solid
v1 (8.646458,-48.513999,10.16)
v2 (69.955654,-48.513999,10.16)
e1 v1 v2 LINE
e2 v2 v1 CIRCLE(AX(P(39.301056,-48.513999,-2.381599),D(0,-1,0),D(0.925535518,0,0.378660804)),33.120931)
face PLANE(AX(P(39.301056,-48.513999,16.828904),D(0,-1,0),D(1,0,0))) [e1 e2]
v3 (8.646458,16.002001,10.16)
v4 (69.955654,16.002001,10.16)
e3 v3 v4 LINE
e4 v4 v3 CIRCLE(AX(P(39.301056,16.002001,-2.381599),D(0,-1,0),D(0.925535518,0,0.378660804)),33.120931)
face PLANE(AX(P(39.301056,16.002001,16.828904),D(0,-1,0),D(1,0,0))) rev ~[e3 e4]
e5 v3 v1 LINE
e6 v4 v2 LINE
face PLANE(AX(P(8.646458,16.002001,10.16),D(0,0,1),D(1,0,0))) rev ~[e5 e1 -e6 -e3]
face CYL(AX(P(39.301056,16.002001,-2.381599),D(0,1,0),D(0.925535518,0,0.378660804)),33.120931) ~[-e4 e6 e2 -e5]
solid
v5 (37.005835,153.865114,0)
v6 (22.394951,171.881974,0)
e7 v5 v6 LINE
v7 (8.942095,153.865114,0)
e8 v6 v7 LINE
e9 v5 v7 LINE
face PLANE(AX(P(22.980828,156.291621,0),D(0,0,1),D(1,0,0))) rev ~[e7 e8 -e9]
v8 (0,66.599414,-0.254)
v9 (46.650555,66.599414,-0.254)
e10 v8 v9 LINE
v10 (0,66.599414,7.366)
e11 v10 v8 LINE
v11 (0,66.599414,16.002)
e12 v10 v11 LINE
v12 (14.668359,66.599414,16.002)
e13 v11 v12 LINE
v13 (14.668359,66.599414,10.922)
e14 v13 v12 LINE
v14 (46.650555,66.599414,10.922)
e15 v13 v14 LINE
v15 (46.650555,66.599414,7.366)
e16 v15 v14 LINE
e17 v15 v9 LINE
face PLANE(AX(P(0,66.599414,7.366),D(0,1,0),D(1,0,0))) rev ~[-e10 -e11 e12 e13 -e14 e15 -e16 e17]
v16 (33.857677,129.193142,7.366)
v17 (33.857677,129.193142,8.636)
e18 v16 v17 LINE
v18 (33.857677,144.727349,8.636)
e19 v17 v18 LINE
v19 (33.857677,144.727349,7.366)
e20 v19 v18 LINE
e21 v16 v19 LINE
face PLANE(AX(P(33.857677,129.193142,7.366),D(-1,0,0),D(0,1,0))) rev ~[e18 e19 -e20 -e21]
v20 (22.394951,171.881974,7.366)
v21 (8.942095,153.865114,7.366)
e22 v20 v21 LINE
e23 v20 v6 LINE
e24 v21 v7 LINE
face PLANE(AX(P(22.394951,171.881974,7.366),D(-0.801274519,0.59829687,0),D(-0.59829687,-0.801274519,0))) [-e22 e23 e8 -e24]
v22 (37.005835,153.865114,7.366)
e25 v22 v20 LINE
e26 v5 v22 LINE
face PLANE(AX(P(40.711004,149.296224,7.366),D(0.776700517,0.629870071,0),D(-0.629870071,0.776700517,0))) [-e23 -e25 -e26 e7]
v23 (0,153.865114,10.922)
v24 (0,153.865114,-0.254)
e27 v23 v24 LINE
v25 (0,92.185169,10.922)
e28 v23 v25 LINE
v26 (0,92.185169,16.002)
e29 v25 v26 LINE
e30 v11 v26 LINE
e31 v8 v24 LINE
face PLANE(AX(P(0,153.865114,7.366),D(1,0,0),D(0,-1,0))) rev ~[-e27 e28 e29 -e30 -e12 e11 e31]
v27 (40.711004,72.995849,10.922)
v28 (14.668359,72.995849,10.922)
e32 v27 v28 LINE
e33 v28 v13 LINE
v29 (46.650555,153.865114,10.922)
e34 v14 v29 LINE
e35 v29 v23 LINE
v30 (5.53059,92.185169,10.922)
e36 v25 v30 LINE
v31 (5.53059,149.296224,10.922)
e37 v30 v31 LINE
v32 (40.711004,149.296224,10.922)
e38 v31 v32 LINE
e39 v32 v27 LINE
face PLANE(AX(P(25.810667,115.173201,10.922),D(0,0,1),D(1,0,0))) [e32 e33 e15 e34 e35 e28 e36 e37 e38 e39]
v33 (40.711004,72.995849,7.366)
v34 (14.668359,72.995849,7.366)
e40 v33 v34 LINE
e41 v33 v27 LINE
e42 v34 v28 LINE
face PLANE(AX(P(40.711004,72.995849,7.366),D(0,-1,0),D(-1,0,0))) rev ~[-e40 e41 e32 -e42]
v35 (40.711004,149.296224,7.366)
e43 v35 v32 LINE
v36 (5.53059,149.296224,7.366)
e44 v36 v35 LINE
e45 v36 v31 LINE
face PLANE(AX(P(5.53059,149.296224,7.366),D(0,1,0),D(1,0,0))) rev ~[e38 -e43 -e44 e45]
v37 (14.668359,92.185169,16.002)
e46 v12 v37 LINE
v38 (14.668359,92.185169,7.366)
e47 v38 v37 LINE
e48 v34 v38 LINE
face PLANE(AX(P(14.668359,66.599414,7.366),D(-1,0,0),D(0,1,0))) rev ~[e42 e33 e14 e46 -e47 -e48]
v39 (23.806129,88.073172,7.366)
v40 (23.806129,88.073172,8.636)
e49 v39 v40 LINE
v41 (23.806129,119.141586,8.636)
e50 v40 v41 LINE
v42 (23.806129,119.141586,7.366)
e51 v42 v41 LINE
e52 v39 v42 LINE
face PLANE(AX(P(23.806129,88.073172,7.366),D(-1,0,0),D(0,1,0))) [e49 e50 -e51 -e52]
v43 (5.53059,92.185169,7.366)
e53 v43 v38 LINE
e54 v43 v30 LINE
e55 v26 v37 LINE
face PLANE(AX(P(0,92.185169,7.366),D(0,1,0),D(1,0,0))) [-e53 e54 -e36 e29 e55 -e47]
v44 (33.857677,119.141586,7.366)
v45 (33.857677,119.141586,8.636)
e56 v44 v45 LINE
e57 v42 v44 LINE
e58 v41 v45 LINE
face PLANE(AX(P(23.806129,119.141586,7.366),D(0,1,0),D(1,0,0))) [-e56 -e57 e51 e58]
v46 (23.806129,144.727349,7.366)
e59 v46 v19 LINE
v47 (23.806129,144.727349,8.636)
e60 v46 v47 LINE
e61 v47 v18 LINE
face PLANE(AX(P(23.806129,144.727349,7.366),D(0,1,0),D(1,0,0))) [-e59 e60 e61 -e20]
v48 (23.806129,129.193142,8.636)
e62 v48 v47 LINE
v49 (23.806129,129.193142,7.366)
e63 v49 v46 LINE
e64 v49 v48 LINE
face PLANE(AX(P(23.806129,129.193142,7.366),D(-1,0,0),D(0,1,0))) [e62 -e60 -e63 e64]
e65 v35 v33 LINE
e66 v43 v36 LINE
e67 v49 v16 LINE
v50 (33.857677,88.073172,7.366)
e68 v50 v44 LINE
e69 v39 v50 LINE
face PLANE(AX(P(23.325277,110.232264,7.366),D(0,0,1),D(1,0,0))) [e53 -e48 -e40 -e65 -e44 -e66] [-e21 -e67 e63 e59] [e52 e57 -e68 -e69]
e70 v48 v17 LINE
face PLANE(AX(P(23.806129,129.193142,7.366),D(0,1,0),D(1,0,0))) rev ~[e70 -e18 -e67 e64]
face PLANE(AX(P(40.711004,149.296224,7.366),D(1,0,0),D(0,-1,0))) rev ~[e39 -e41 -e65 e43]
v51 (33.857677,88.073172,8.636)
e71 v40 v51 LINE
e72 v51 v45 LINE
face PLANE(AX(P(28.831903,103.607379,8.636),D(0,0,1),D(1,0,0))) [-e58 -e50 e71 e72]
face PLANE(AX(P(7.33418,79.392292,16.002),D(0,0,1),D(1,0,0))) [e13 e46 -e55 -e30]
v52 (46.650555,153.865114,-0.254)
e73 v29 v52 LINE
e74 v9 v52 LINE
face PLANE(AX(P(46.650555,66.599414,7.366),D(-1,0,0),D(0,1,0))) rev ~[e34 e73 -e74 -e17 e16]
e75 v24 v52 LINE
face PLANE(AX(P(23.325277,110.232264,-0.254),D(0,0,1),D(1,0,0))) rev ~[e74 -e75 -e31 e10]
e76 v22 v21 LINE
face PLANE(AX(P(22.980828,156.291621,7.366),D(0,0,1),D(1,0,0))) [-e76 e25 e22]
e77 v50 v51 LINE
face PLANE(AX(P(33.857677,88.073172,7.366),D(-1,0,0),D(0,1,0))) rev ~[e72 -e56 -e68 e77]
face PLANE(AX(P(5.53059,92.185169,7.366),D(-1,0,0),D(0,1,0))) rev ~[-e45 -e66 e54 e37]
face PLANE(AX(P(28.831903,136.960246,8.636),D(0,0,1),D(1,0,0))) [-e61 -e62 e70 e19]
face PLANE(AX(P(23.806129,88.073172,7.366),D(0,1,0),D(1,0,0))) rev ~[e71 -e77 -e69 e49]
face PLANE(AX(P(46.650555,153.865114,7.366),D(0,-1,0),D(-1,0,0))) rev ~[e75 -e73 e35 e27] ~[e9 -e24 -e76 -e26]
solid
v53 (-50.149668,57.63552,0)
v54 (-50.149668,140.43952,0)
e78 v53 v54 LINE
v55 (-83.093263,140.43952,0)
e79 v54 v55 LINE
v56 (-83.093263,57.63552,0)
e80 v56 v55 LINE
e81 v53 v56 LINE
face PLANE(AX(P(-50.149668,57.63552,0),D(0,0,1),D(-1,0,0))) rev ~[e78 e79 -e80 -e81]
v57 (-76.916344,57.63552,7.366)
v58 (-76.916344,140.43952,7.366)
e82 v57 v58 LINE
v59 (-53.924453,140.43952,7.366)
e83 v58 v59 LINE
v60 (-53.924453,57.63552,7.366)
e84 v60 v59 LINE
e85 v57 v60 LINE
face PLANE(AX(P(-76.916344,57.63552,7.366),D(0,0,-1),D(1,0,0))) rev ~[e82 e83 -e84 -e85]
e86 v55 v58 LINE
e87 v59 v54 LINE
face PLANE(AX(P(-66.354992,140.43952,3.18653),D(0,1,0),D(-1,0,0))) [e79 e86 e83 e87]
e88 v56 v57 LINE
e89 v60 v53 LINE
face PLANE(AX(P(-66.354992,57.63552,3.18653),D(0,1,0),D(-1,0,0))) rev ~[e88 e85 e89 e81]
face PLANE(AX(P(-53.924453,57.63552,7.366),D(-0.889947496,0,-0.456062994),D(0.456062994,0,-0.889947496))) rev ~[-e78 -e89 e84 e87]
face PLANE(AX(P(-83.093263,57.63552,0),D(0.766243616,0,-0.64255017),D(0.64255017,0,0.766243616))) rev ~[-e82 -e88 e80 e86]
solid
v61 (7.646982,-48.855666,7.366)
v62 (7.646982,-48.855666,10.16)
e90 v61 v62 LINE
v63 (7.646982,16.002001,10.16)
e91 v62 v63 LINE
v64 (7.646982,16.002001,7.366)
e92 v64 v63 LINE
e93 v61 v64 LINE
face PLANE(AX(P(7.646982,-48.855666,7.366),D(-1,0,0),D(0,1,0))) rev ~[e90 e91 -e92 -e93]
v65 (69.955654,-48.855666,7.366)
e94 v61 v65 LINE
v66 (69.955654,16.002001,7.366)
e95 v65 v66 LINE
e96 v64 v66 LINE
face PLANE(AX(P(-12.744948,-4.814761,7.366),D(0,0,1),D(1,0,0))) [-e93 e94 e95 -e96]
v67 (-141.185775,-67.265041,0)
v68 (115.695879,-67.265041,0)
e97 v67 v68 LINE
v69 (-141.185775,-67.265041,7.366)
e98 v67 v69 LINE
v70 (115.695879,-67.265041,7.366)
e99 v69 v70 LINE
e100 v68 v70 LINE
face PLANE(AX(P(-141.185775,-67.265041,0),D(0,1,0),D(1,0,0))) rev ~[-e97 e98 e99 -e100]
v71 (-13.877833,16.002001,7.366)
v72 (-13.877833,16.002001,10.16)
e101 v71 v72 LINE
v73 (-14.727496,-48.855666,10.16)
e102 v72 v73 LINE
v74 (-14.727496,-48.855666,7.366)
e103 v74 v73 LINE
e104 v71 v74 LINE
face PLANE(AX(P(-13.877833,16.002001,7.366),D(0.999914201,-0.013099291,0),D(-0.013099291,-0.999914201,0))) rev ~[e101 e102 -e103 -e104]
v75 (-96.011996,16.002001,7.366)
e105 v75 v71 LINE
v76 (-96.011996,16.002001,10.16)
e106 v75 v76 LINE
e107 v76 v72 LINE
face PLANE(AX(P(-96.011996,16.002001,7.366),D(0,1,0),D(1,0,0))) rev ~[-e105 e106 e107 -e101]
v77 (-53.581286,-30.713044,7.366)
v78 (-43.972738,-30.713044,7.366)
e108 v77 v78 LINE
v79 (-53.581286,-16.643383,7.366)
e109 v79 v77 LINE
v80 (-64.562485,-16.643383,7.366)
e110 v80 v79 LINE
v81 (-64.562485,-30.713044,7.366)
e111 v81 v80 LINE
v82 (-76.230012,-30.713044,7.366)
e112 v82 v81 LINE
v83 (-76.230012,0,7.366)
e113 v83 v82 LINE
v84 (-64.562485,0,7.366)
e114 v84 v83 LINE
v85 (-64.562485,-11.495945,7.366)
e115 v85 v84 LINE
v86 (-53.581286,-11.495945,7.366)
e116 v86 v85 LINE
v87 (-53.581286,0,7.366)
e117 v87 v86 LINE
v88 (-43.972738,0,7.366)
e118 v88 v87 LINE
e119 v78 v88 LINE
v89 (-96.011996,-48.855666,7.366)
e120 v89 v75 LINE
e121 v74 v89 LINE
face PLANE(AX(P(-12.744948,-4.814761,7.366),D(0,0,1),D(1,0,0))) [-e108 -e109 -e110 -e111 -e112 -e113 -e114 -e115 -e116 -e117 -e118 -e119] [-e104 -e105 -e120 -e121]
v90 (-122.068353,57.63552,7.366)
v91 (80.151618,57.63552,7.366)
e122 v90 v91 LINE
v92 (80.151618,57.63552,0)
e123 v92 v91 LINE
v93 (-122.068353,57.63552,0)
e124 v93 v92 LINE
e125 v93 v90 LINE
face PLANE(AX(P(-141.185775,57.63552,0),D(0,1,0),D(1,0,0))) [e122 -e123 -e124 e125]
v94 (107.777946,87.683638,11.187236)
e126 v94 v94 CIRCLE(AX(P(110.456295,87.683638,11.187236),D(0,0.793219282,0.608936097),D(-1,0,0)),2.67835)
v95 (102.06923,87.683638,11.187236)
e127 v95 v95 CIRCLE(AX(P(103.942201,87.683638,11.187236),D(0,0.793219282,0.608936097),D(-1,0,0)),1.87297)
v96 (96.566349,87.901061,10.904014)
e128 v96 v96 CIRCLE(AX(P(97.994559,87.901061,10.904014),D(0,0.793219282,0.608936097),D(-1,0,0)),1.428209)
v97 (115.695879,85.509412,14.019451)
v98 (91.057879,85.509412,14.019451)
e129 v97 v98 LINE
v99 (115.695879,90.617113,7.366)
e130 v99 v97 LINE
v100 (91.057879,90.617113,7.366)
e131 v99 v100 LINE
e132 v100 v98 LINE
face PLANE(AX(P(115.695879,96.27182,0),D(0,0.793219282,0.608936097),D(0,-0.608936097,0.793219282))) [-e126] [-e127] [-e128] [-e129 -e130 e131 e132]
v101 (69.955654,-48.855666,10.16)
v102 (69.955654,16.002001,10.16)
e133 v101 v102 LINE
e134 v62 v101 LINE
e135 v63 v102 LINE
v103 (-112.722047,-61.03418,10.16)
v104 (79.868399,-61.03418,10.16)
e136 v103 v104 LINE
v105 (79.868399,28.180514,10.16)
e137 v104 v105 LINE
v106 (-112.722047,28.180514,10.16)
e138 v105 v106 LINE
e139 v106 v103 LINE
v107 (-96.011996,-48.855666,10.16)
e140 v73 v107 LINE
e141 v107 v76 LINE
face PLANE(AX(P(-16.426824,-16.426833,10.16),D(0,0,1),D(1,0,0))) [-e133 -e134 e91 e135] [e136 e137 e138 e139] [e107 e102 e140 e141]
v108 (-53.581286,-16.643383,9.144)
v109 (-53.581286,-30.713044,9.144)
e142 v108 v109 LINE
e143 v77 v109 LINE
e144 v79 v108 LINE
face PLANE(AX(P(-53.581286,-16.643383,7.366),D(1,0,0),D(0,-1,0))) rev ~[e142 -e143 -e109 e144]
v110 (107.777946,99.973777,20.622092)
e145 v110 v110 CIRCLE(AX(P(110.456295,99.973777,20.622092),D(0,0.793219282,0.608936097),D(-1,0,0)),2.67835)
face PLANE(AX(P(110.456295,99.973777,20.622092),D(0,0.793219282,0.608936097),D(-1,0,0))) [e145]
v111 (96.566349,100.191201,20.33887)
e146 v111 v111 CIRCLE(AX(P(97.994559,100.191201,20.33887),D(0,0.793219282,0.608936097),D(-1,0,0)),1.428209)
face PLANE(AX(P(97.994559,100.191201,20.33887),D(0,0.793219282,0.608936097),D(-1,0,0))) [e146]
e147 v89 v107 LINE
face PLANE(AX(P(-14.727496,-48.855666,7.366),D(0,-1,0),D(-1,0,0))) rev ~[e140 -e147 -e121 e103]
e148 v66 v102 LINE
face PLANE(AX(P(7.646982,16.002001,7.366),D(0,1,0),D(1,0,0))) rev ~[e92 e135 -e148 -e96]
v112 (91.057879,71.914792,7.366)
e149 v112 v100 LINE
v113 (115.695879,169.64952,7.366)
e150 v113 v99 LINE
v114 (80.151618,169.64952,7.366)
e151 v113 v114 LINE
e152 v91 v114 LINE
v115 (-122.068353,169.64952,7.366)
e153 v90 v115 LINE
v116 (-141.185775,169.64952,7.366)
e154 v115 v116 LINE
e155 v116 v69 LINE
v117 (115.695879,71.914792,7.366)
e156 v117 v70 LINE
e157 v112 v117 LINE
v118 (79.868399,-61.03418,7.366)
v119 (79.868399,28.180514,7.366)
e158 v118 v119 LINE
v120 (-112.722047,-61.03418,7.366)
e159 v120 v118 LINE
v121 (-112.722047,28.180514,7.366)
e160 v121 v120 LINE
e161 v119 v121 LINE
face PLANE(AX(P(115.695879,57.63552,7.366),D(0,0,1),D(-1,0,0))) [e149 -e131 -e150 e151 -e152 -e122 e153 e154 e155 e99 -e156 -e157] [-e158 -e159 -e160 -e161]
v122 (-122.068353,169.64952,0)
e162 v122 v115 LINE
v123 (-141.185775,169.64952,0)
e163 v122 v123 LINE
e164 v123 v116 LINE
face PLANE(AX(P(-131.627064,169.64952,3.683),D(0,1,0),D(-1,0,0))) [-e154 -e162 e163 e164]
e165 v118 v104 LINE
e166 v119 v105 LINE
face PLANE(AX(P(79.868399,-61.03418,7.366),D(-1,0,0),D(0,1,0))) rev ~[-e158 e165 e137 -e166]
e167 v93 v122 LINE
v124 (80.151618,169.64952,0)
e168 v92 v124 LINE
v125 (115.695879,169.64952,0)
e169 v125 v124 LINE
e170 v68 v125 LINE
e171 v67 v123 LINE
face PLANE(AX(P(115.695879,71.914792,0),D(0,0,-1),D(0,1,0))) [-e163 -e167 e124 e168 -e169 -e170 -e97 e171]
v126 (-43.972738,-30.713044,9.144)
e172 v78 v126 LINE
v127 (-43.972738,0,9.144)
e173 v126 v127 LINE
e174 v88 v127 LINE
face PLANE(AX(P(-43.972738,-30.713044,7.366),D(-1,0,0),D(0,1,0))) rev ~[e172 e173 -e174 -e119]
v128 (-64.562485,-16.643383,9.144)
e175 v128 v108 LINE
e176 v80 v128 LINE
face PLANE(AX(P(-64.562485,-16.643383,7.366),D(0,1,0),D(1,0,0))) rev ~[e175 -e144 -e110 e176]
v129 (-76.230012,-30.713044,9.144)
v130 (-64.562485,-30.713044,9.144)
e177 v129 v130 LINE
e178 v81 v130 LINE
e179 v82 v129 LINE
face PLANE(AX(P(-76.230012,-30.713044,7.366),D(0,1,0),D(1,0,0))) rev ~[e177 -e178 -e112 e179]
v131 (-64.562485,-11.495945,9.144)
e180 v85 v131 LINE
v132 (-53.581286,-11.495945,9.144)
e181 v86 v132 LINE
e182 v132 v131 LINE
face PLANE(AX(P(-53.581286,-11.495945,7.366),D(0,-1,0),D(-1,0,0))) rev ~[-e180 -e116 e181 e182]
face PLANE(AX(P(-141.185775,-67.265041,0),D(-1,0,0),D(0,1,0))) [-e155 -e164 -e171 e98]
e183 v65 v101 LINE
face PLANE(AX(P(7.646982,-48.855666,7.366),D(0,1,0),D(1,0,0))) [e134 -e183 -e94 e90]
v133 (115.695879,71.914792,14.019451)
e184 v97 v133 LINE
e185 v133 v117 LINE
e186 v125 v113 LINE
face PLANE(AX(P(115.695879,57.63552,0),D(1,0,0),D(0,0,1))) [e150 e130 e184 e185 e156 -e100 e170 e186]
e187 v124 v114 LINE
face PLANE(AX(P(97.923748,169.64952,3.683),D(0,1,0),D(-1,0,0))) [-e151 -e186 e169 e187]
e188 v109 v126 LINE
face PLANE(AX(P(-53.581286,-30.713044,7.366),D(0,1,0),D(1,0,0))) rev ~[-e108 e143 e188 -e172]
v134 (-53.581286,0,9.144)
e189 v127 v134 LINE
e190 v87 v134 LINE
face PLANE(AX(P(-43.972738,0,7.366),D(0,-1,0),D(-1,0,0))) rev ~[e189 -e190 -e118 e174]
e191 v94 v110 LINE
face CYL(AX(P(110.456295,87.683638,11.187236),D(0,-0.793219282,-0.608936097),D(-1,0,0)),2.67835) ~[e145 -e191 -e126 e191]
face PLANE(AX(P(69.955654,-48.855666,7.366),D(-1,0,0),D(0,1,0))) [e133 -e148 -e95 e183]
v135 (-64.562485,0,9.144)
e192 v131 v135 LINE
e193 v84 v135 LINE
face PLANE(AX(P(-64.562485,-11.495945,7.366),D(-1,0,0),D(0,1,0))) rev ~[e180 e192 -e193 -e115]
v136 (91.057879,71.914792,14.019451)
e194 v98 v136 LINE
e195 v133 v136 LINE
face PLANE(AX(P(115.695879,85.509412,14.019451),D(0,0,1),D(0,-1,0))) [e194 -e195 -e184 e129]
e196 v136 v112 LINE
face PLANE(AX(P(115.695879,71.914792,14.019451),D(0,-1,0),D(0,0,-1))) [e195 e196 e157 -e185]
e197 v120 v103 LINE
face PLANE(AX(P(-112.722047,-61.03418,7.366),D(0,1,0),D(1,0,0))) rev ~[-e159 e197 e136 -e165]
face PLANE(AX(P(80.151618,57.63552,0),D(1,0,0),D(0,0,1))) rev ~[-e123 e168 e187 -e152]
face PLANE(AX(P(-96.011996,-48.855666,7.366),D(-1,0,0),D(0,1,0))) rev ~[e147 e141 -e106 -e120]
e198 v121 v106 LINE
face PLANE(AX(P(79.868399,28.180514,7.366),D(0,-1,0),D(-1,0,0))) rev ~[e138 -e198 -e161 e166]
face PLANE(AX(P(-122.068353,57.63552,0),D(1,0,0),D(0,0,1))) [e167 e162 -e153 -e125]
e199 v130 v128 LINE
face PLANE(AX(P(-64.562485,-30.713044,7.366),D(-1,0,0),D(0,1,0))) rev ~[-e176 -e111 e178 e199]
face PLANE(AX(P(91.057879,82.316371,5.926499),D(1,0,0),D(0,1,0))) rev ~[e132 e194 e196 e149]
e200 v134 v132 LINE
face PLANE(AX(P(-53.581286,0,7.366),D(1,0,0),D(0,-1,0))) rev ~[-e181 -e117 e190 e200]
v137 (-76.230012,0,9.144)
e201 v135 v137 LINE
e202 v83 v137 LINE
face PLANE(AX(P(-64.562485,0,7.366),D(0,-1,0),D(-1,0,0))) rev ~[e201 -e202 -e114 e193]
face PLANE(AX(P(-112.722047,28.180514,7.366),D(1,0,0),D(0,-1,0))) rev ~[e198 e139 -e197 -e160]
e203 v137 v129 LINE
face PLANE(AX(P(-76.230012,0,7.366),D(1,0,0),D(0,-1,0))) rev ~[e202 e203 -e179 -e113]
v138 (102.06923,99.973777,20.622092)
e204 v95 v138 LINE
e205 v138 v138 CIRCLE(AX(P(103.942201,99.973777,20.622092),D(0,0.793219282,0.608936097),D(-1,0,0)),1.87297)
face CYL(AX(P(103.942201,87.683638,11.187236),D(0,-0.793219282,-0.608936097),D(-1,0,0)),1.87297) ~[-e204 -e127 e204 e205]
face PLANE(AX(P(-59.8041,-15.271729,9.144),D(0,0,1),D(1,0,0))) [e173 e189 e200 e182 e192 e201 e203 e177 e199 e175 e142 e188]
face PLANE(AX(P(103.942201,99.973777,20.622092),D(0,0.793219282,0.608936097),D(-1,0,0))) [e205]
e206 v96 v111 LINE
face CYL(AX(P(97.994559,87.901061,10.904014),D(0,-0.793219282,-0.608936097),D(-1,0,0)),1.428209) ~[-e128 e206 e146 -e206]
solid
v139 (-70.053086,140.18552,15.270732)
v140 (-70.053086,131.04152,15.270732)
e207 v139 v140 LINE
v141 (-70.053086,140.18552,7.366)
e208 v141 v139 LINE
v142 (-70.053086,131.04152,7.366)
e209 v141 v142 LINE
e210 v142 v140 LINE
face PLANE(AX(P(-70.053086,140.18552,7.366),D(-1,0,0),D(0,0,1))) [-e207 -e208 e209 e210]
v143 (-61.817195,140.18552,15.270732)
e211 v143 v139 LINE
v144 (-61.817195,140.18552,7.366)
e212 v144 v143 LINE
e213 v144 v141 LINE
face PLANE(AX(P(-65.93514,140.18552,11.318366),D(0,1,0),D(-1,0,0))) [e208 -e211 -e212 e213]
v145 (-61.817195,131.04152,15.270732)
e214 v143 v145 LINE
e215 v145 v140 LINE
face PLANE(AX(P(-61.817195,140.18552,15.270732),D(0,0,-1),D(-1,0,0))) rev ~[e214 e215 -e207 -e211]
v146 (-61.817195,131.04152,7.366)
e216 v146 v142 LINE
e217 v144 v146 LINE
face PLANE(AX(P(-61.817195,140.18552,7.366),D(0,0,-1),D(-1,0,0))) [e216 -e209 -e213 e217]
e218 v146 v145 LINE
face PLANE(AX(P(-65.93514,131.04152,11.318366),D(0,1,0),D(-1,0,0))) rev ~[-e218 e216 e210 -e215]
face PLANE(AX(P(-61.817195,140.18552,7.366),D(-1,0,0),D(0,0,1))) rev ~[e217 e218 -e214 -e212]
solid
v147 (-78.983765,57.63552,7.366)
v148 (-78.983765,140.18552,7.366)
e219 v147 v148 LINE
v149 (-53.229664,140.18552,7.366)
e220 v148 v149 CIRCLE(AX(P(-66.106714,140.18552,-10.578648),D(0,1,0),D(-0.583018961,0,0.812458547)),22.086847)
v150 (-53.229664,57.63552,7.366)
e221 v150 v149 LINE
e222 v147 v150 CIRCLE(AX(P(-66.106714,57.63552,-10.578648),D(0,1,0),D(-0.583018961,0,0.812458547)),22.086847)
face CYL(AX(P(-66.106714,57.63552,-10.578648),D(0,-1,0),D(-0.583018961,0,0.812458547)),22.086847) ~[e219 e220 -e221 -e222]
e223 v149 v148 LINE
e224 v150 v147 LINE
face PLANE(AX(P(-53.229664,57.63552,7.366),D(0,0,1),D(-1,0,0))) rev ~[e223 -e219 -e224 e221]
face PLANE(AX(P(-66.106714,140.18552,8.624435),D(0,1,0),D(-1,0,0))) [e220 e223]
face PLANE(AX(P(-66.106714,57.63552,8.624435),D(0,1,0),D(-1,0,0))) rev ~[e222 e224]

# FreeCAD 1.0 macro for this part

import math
import FreeCAD as App
import Part
import Sketcher
Q = App.Units.Quantity

doc = App.newDocument("Part")
body = doc.addObject("PartDesign::Body", "Body")

# Sketch on XY plane
sketch1 = body.newObject("Sketcher::SketchObject", "Sketch")
sketch1.AttachmentSupport = (doc.getObject("XY_Plane"), [""])
sketch1.MapMode = "FlatFace"
sketch1.addGeometry(Part.LineSegment(App.Vector(-141.185775, 57.63552, 0), App.Vector(-141.185775, -67.265041, 0)), False)
sketch1.addGeometry(Part.LineSegment(App.Vector(-141.185775, -67.265041, 0), App.Vector(115.695879, -67.265041, 0)), False)
sketch1.addGeometry(Part.LineSegment(App.Vector(115.695879, -67.265041, 0), App.Vector(115.695879, 57.63552, 0)), False)
sketch1.addGeometry(Part.LineSegment(App.Vector(115.695879, 57.63552, 0), App.Vector(-141.185775, 57.63552, 0)), False)
sketch1.addConstraint(Sketcher.Constraint("Coincident", 0, 2, 1, 1))
sketch1.addConstraint(Sketcher.Constraint("Coincident", 1, 2, 2, 1))
sketch1.addConstraint(Sketcher.Constraint("Coincident", 2, 2, 3, 1))
sketch1.addConstraint(Sketcher.Constraint("Coincident", 3, 2, 0, 1))
sketch1.addConstraint(Sketcher.Constraint("Vertical", 0))
sketch1.addConstraint(Sketcher.Constraint("Horizontal", 1))
sketch1.addConstraint(Sketcher.Constraint("Vertical", 2))
sketch1.addConstraint(Sketcher.Constraint("Horizontal", 3))
sketch1.addConstraint(Sketcher.Constraint("DistanceY", 0, 2, 0, 1, Q("124.900561 mm")))
sketch1.addConstraint(Sketcher.Constraint("DistanceX", 1, 1, 1, 2, Q("256.881654 mm")))
sketch1.addConstraint(Sketcher.Constraint("DistanceY", 0, 2, -1, 1, Q("67.265041 mm")))
sketch1.addConstraint(Sketcher.Constraint("DistanceX", -1, 1, 1, 2, Q("115.695879 mm")))
pad1 = body.newObject("PartDesign::Pad", "Pad")
pad1.Profile = sketch1
pad1.Length = Q("0.29 in")

# Sketch on XY plane
sketch2 = body.newObject("Sketcher::SketchObject", "Sketch001")
sketch2.AttachmentSupport = (doc.getObject("XY_Plane"), [""])
sketch2.MapMode = "FlatFace"
sketch2.AttachmentOffset = App.Placement(App.Vector(0, 0, 0.29 * 25.4), App.Rotation())
sketch2.addGeometry(Part.LineSegment(App.Vector(-112.722047, -61.03418, 0), App.Vector(79.868399, -61.03418, 0)), False)
sketch2.addGeometry(Part.LineSegment(App.Vector(79.868399, -61.03418, 0), App.Vector(79.868399, 28.180514, 0)), False)
sketch2.addGeometry(Part.LineSegment(App.Vector(79.868399, 28.180514, 0), App.Vector(-112.722047, 28.180514, 0)), False)
sketch2.addGeometry(Part.LineSegment(App.Vector(-112.722047, 28.180514, 0), App.Vector(-112.722047, -61.03418, 0)), False)
sketch2.addGeometry(Part.LineSegment(App.Vector(-96.011996, -48.855666, 0), App.Vector(-96.011996, 16.002001, 0)), False)
sketch2.addGeometry(Part.LineSegment(App.Vector(-96.011996, 16.002001, 0), App.Vector(-13.877833, 16.002001, 0)), False)
sketch2.addGeometry(Part.LineSegment(App.Vector(-13.877833, 16.002001, 0), App.Vector(-14.727496, -48.855666, 0)), False)
sketch2.addGeometry(Part.LineSegment(App.Vector(-14.727496, -48.855666, 0), App.Vector(-96.011996, -48.855666, 0)), False)
sketch2.addGeometry(Part.LineSegment(App.Vector(69.955654, -48.855666, 0), App.Vector(7.646982, -48.855666, 0)), False)
sketch2.addGeometry(Part.LineSegment(App.Vector(7.646982, -48.855666, 0), App.Vector(7.646982, 16.002001, 0)), False)
sketch2.addGeometry(Part.LineSegment(App.Vector(7.646982, 16.002001, 0), App.Vector(69.955654, 16.002001, 0)), False)
sketch2.addGeometry(Part.LineSegment(App.Vector(69.955654, 16.002001, 0), App.Vector(69.955654, -48.855666, 0)), False)
sketch2.addConstraint(Sketcher.Constraint("Coincident", 0, 2, 1, 1))
sketch2.addConstraint(Sketcher.Constraint("Coincident", 1, 2, 2, 1))
sketch2.addConstraint(Sketcher.Constraint("Coincident", 2, 2, 3, 1))
sketch2.addConstraint(Sketcher.Constraint("Coincident", 3, 2, 0, 1))
sketch2.addConstraint(Sketcher.Constraint("Coincident", 4, 2, 5, 1))
sketch2.addConstraint(Sketcher.Constraint("Coincident", 5, 2, 6, 1))
sketch2.addConstraint(Sketcher.Constraint("Coincident", 6, 2, 7, 1))
sketch2.addConstraint(Sketcher.Constraint("Coincident", 7, 2, 4, 1))
sketch2.addConstraint(Sketcher.Constraint("Coincident", 8, 2, 9, 1))
sketch2.addConstraint(Sketcher.Constraint("Coincident", 9, 2, 10, 1))
sketch2.addConstraint(Sketcher.Constraint("Coincident", 10, 2, 11, 1))
sketch2.addConstraint(Sketcher.Constraint("Coincident", 11, 2, 8, 1))
sketch2.addConstraint(Sketcher.Constraint("Horizontal", 0))
sketch2.addConstraint(Sketcher.Constraint("Vertical", 1))
sketch2.addConstraint(Sketcher.Constraint("Horizontal", 2))
sketch2.addConstraint(Sketcher.Constraint("Vertical", 3))
sketch2.addConstraint(Sketcher.Constraint("Vertical", 4))
sketch2.addConstraint(Sketcher.Constraint("Horizontal", 5))
sketch2.addConstraint(Sketcher.Constraint("Horizontal", 7))
sketch2.addConstraint(Sketcher.Constraint("Horizontal", 8))
sketch2.addConstraint(Sketcher.Constraint("Vertical", 9))
sketch2.addConstraint(Sketcher.Constraint("Horizontal", 10))
sketch2.addConstraint(Sketcher.Constraint("Vertical", 11))
sketch2.addConstraint(Sketcher.Constraint("Horizontal", 7, 2, 8, 2))
sketch2.addConstraint(Sketcher.Constraint("Horizontal", 5, 2, 9, 2))
sketch2.addConstraint(Sketcher.Constraint("DistanceX", 4, 2, -1, 1, Q("3.7799999 in")))
sketch2.addConstraint(Sketcher.Constraint("DistanceY", -1, 1, 4, 2, Q("0.63 in")))
sketch2.addConstraint(Sketcher.Constraint("DistanceX", 7, 2, 7, 1, Q("81.284501 mm")))
sketch2.addConstraint(Sketcher.Constraint("DistanceX", -1, 1, 0, 2, Q("79.868399 mm")))
sketch2.addConstraint(Sketcher.Constraint("DistanceX", 0, 1, 0, 2, Q("192.590445 mm")))
sketch2.addConstraint(Sketcher.Constraint("DistanceX", 5, 1, 5, 2, Q("82.134163 mm")))
sketch2.addConstraint(Sketcher.Constraint("DistanceX", 8, 2, 8, 1, Q("62.308673 mm")))
sketch2.addConstraint(Sketcher.Constraint("DistanceY", 1, 1, 1, 2, Q("89.214694 mm")))
sketch2.addConstraint(Sketcher.Constraint("DistanceY", 4, 1, 4, 2, Q("64.857667 mm")))
sketch2.addConstraint(Sketcher.Constraint("DistanceY", 0, 2, -1, 1, Q("61.03418 mm")))
sketch2.addConstraint(Sketcher.Constraint("DistanceX", -1, 1, 8, 2, Q("7.646982 mm")))
pad2 = body.newObject("PartDesign::Pad", "Pad001")
pad2.Profile = sketch2
pad2.Length = Q("0.11 in")

# Sketch on XY plane
sketch3 = body.newObject("Sketcher::SketchObject", "Sketch002")
sketch3.AttachmentSupport = (doc.getObject("XY_Plane"), [""])
sketch3.MapMode = "FlatFace"
sketch3.AttachmentOffset = App.Placement(App.Vector(0, 0, 0.29 * 25.4), App.Rotation())
sketch3.addGeometry(Part.LineSegment(App.Vector(-64.562485, 0, 0), App.Vector(-76.230012, 0, 0)), False)
sketch3.addGeometry(Part.LineSegment(App.Vector(-76.230012, 0, 0), App.Vector(-76.230012, -30.713044, 0)), False)
sketch3.addGeometry(Part.LineSegment(App.Vector(-76.230012, -30.713044, 0), App.Vector(-64.562485, -30.713044, 0)), False)
sketch3.addGeometry(Part.LineSegment(App.Vector(-64.562485, -30.713044, 0), App.Vector(-64.562485, -16.643383, 0)), False)
sketch3.addGeometry(Part.LineSegment(App.Vector(-64.562485, -16.643383, 0), App.Vector(-53.581286, -16.643383, 0)), False)
sketch3.addGeometry(Part.LineSegment(App.Vector(-53.581286, -16.643383, 0), App.Vector(-53.581286, -30.713044, 0)), False)
sketch3.addGeometry(Part.LineSegment(App.Vector(-53.581286, -30.713044, 0), App.Vector(-43.972738, -30.713044, 0)), False)
sketch3.addGeometry(Part.LineSegment(App.Vector(-43.972738, -30.713044, 0), App.Vector(-43.972738, 0, 0)), False)
sketch3.addGeometry(Part.LineSegment(App.Vector(-43.972738, 0, 0), App.Vector(-53.581286, 0, 0)), False)
sketch3.addGeometry(Part.LineSegment(App.Vector(-53.581286, 0, 0), App.Vector(-53.581286, -11.495945, 0)), False)
sketch3.addGeometry(Part.LineSegment(App.Vector(-53.581286, -11.495945, 0), App.Vector(-64.562485, -11.495945, 0)), False)
sketch3.addGeometry(Part.LineSegment(App.Vector(-64.562485, -11.495945, 0), App.Vector(-64.562485, 0, 0)), False)
sketch3.addConstraint(Sketcher.Constraint("Coincident", 0, 2, 1, 1))
sketch3.addConstraint(Sketcher.Constraint("Coincident", 1, 2, 2, 1))
sketch3.addConstraint(Sketcher.Constraint("Coincident", 2, 2, 3, 1))
sketch3.addConstraint(Sketcher.Constraint("Coincident", 3, 2, 4, 1))
sketch3.addConstraint(Sketcher.Constraint("Coincident", 4, 2, 5, 1))
sketch3.addConstraint(Sketcher.Constraint("Coincident", 5, 2, 6, 1))
sketch3.addConstraint(Sketcher.Constraint("Coincident", 6, 2, 7, 1))
sketch3.addConstraint(Sketcher.Constraint("Coincident", 7, 2, 8, 1))
sketch3.addConstraint(Sketcher.Constraint("Coincident", 8, 2, 9, 1))
sketch3.addConstraint(Sketcher.Constraint("Coincident", 9, 2, 10, 1))
sketch3.addConstraint(Sketcher.Constraint("Coincident", 10, 2, 11, 1))
sketch3.addConstraint(Sketcher.Constraint("Coincident", 11, 2, 0, 1))
sketch3.addConstraint(Sketcher.Constraint("Horizontal", 0))
sketch3.addConstraint(Sketcher.Constraint("Vertical", 1))
sketch3.addConstraint(Sketcher.Constraint("Horizontal", 2))
sketch3.addConstraint(Sketcher.Constraint("Vertical", 3))
sketch3.addConstraint(Sketcher.Constraint("Horizontal", 4))
sketch3.addConstraint(Sketcher.Constraint("Vertical", 5))
sketch3.addConstraint(Sketcher.Constraint("Horizontal", 6))
sketch3.addConstraint(Sketcher.Constraint("Vertical", 7))
sketch3.addConstraint(Sketcher.Constraint("Horizontal", 8))
sketch3.addConstraint(Sketcher.Constraint("Vertical", 9))
sketch3.addConstraint(Sketcher.Constraint("Horizontal", 10))
sketch3.addConstraint(Sketcher.Constraint("Vertical", 11))
sketch3.addConstraint(Sketcher.Constraint("PointOnObject", 0, 2, -1))
sketch3.addConstraint(Sketcher.Constraint("PointOnObject", 7, 2, -1))
sketch3.addConstraint(Sketcher.Constraint("Horizontal", 2, 2, 5, 2))
sketch3.addConstraint(Sketcher.Constraint("Vertical", 5, 2, 8, 2))
sketch3.addConstraint(Sketcher.Constraint("Vertical", 3, 2, 10, 2))
sketch3.addConstraint(Sketcher.Constraint("DistanceX", 4, 1, 4, 2, Q("10.981198 mm")))
sketch3.addConstraint(Sketcher.Constraint("DistanceX", 6, 1, 6, 2, Q("9.608548 mm")))
sketch3.addConstraint(Sketcher.Constraint("DistanceY", 3, 1, 3, 2, Q("14.069661 mm")))
sketch3.addConstraint(Sketcher.Constraint("DistanceY", 5, 2, 9, 2, Q("19.217099 mm")))
sketch3.addConstraint(Sketcher.Constraint("DistanceX", 0, 2, 0, 1, Q("11.667527 mm")))
sketch3.addConstraint(Sketcher.Constraint("DistanceY", 1, 2, 1, 1, Q("30.713044 mm")))
sketch3.addConstraint(Sketcher.Constraint("DistanceX", 0, 2, -1, 1, Q("76.230012 mm")))
pad3 = body.newObject("PartDesign::Pad", "Pad002")
pad3.Profile = sketch3
pad3.Length = Q("0.07 in")

# Sketch on XZ plane
sketch4 = body.newObject("Sketcher::SketchObject", "Sketch003")
sketch4.AttachmentSupport = (doc.getObject("XZ_Plane"), [""])
sketch4.MapMode = "FlatFace"
sketch4.AttachmentOffset = App.Placement(App.Vector(0, 0, -57.63552), App.Rotation())
sketch4.addGeometry(Part.LineSegment(App.Vector(115.695879, 7.366, 0), App.Vector(115.695879, 0, 0)), False)
sketch4.addGeometry(Part.LineSegment(App.Vector(115.695879, 0, 0), App.Vector(80.151618, 0, 0)), False)
sketch4.addGeometry(Part.LineSegment(App.Vector(80.151618, 0, 0), App.Vector(80.151618, 7.366, 0)), False)
sketch4.addGeometry(Part.LineSegment(App.Vector(80.151618, 7.366, 0), App.Vector(115.695879, 7.366, 0)), False)
sketch4.addGeometry(Part.LineSegment(App.Vector(-122.068353, 7.366, 0), App.Vector(-122.068353, 0, 0)), False)
sketch4.addGeometry(Part.LineSegment(App.Vector(-122.068353, 0, 0), App.Vector(-141.185775, 0, 0)), False)
sketch4.addGeometry(Part.LineSegment(App.Vector(-141.185775, 0, 0), App.Vector(-141.185775, 7.366, 0)), False)
sketch4.addGeometry(Part.LineSegment(App.Vector(-141.185775, 7.366, 0), App.Vector(-122.068353, 7.366, 0)), False)
sketch4.addConstraint(Sketcher.Constraint("Coincident", 0, 2, 1, 1))
sketch4.addConstraint(Sketcher.Constraint("Coincident", 1, 2, 2, 1))
sketch4.addConstraint(Sketcher.Constraint("Coincident", 2, 2, 3, 1))
sketch4.addConstraint(Sketcher.Constraint("Coincident", 3, 2, 0, 1))
sketch4.addConstraint(Sketcher.Constraint("Coincident", 4, 2, 5, 1))
sketch4.addConstraint(Sketcher.Constraint("Coincident", 5, 2, 6, 1))
sketch4.addConstraint(Sketcher.Constraint("Coincident", 6, 2, 7, 1))
sketch4.addConstraint(Sketcher.Constraint("Coincident", 7, 2, 4, 1))
sketch4.addConstraint(Sketcher.Constraint("Vertical", 0))
sketch4.addConstraint(Sketcher.Constraint("Horizontal", 1))
sketch4.addConstraint(Sketcher.Constraint("Vertical", 2))
sketch4.addConstraint(Sketcher.Constraint("Horizontal", 3))
sketch4.addConstraint(Sketcher.Constraint("Vertical", 4))
sketch4.addConstraint(Sketcher.Constraint("Horizontal", 5))
sketch4.addConstraint(Sketcher.Constraint("Vertical", 6))
sketch4.addConstraint(Sketcher.Constraint("Horizontal", 7))
sketch4.addConstraint(Sketcher.Constraint("PointOnObject", 0, 2, -1))
sketch4.addConstraint(Sketcher.Constraint("PointOnObject", 4, 2, -1))
sketch4.addConstraint(Sketcher.Constraint("Horizontal", 3, 2, 6, 2))
sketch4.addConstraint(Sketcher.Constraint("DistanceY", 0, 2, 0, 1, Q("0.29 in")))
sketch4.addConstraint(Sketcher.Constraint("DistanceX", 1, 2, 1, 1, Q("35.544261 mm")))
sketch4.addConstraint(Sketcher.Constraint("DistanceX", 5, 2, 5, 1, Q("19.117422 mm")))
sketch4.addConstraint(Sketcher.Constraint("DistanceX", -1, 1, 0, 2, Q("115.695879 mm")))
sketch4.addConstraint(Sketcher.Constraint("DistanceX", 4, 2, 1, 2, Q("202.219971 mm")))
pad4 = body.newObject("PartDesign::Pad", "Pad003")
pad4.Profile = sketch4
pad4.Length = Q("4.41 in")
pad4.Reversed = True

# Sketch on YZ plane
sketch5 = body.newObject("Sketcher::SketchObject", "Sketch004")
sketch5.AttachmentSupport = (doc.getObject("YZ_Plane"), [""])
sketch5.MapMode = "FlatFace"
sketch5.AttachmentOffset = App.Placement(App.Vector(0, 0, 115.695879), App.Rotation())
sketch5.addGeometry(Part.LineSegment(App.Vector(71.914792, 0, 0), App.Vector(96.27182, 0, 0)), False)
sketch5.addGeometry(Part.LineSegment(App.Vector(96.27182, 0, 0), App.Vector(85.509412, 14.019451, 0)), False)
sketch5.addGeometry(Part.LineSegment(App.Vector(85.509412, 14.019451, 0), App.Vector(71.914792, 14.019451, 0)), False)
sketch5.addGeometry(Part.LineSegment(App.Vector(71.914792, 14.019451, 0), App.Vector(71.914792, 0, 0)), False)
sketch5.addConstraint(Sketcher.Constraint("Coincident", 0, 2, 1, 1))
sketch5.addConstraint(Sketcher.Constraint("Coincident", 1, 2, 2, 1))
sketch5.addConstraint(Sketcher.Constraint("Coincident", 2, 2, 3, 1))
sketch5.addConstraint(Sketcher.Constraint("Coincident", 3, 2, 0, 1))
sketch5.addConstraint(Sketcher.Constraint("Horizontal", 0))
sketch5.addConstraint(Sketcher.Constraint("Horizontal", 2))
sketch5.addConstraint(Sketcher.Constraint("Vertical", 3))
sketch5.addConstraint(Sketcher.Constraint("PointOnObject", 0, 2, -1))
sketch5.addConstraint(Sketcher.Constraint("DistanceX", 0, 1, 0, 2, Q("24.357028 mm")))
sketch5.addConstraint(Sketcher.Constraint("DistanceX", 2, 2, 2, 1, Q("13.59462 mm")))
sketch5.addConstraint(Sketcher.Constraint("DistanceY", 3, 2, 3, 1, Q("14.019451 mm")))
sketch5.addConstraint(Sketcher.Constraint("DistanceX", -1, 1, 0, 2, Q("96.27182 mm")))
pad5 = body.newObject("PartDesign::Pad", "Pad004")
pad5.Profile = sketch5
pad5.Length = Q("0.97 in")
pad5.Reversed = True

# Sketch on an angled plane
sketch6 = body.newObject("Sketcher::SketchObject", "Sketch005")
sketch6.Placement = App.Placement(App.Vector(0, 60.573924, 46.501201), App.Rotation(App.Vector(-1, 0, 0), App.Vector(0, -0.608936097, 0.793219282), App.Vector(0, 0.793219282, 0.608936097), "ZXY"))
sketch6.addGeometry(Part.Circle(App.Vector(-110.456295, -44.519801, 0), App.Vector(0, 0, 1), 2.67835), False)
sketch6.addGeometry(Part.Circle(App.Vector(-97.994559, -44.876855, 0), App.Vector(0, 0, 1), 1.428209), False)
sketch6.addGeometry(Part.Circle(App.Vector(-103.942201, -44.519801, 0), App.Vector(0, 0, 1), 1.87297), False)
sketch6.addConstraint(Sketcher.Constraint("Horizontal", 0, 3, 2, 3))
sketch6.addConstraint(Sketcher.Constraint("Diameter", 0, Q("5.356699 mm")))
sketch6.addConstraint(Sketcher.Constraint("Diameter", 1, Q("2.856418 mm")))
sketch6.addConstraint(Sketcher.Constraint("Diameter", 2, Q("3.74594 mm")))
sketch6.addConstraint(Sketcher.Constraint("DistanceY", 0, 3, -1, 1, Q("44.519801 mm")))
sketch6.addConstraint(Sketcher.Constraint("DistanceX", 2, 3, -1, 1, Q("103.942201 mm")))
sketch6.addConstraint(Sketcher.Constraint("DistanceX", 1, 3, -1, 1, Q("97.994559 mm")))
sketch6.addConstraint(Sketcher.Constraint("DistanceX", 0, 3, -1, 1, Q("110.456295 mm")))
sketch6.addConstraint(Sketcher.Constraint("DistanceY", 1, 3, -1, 1, Q("44.876855 mm")))
pad6 = body.newObject("PartDesign::Pad", "Pad005")
pad6.Profile = sketch6
pad6.Length = Q("0.61 in")
body2 = doc.addObject("PartDesign::Body", "Body001")

# Sketch on XZ plane
sketch7 = body2.newObject("Sketcher::SketchObject", "Sketch006")
sketch7.AttachmentSupport = (doc.getObject("XZ_Plane001"), [""])
sketch7.MapMode = "FlatFace"
sketch7.AttachmentOffset = App.Placement(App.Vector(0, 0, -0.63 * 25.4), App.Rotation())
sketch7.addGeometry(Part.LineSegment(App.Vector(8.646458, 10.16, 0), App.Vector(69.955654, 10.16, 0)), False)
sketch7.addGeometry(Part.ArcOfCircle(Part.Circle(App.Vector(39.301056, -2.381599, 0), App.Vector(0, 0, 1), 33.120931), math.radians(22.250754), math.radians(157.749246)), False)
sketch7.addConstraint(Sketcher.Constraint("Coincident", 0, 1, 1, 2))
sketch7.addConstraint(Sketcher.Constraint("Coincident", 1, 1, 0, 2))
sketch7.addConstraint(Sketcher.Constraint("Horizontal", 0))
sketch7.addConstraint(Sketcher.Constraint("DistanceY", -1, 1, 0, 1, Q("0.4 in")))
sketch7.addConstraint(Sketcher.Constraint("Radius", 1, Q("33.120931 mm")))
sketch7.addConstraint(Sketcher.Constraint("DistanceY", 1, 3, -1, 1, Q("2.381599 mm")))
sketch7.addConstraint(Sketcher.Constraint("DistanceX", -1, 1, 1, 3, Q("39.301056 mm")))
pad7 = body2.newObject("PartDesign::Pad", "Pad006")
pad7.Profile = sketch7
pad7.Length = Q("2.54 in")
body3 = doc.addObject("PartDesign::Body", "Body002")

# Sketch on XY plane
sketch8 = body3.newObject("Sketcher::SketchObject", "Sketch007")
sketch8.AttachmentSupport = (doc.getObject("XY_Plane002"), [""])
sketch8.MapMode = "FlatFace"
sketch8.AttachmentOffset = App.Placement(App.Vector(0, 0, 0.29 * 25.4), App.Rotation())
sketch8.addGeometry(Part.LineSegment(App.Vector(0, 153.865114, 0), App.Vector(0, 66.599414, 0)), False)
sketch8.addGeometry(Part.LineSegment(App.Vector(0, 66.599414, 0), App.Vector(46.650555, 66.599414, 0)), False)
sketch8.addGeometry(Part.LineSegment(App.Vector(46.650555, 66.599414, 0), App.Vector(46.650555, 153.865114, 0)), False)
sketch8.addGeometry(Part.LineSegment(App.Vector(46.650555, 153.865114, 0), App.Vector(0, 153.865114, 0)), False)
sketch8.addConstraint(Sketcher.Constraint("Coincident", 0, 2, 1, 1))
sketch8.addConstraint(Sketcher.Constraint("Coincident", 1, 2, 2, 1))
sketch8.addConstraint(Sketcher.Constraint("Coincident", 2, 2, 3, 1))
sketch8.addConstraint(Sketcher.Constraint("Coincident", 3, 2, 0, 1))
sketch8.addConstraint(Sketcher.Constraint("Vertical", 0))
sketch8.addConstraint(Sketcher.Constraint("Horizontal", 1))
sketch8.addConstraint(Sketcher.Constraint("Vertical", 2))
sketch8.addConstraint(Sketcher.Constraint("Horizontal", 3))
sketch8.addConstraint(Sketcher.Constraint("PointOnObject", 0, 2, -2))
sketch8.addConstraint(Sketcher.Constraint("DistanceY", 0, 2, 0, 1, Q("87.2657 mm")))
sketch8.addConstraint(Sketcher.Constraint("DistanceX", 1, 1, 1, 2, Q("46.650555 mm")))
sketch8.addConstraint(Sketcher.Constraint("DistanceY", -1, 1, 0, 2, Q("66.599414 mm")))
pad8 = body3.newObject("PartDesign::Pad", "Pad007")
pad8.Profile = sketch8
pad8.Length = Q("0.3 in")
pad8.Reversed = True

# Sketch on XY plane
sketch9 = body3.newObject("Sketcher::SketchObject", "Sketch008")
sketch9.AttachmentSupport = (doc.getObject("XY_Plane002"), [""])
sketch9.MapMode = "FlatFace"
sketch9.AttachmentOffset = App.Placement(App.Vector(0, 0, 0.29 * 25.4), App.Rotation())
sketch9.addGeometry(Part.LineSegment(App.Vector(23.806129, 144.727349, 0), App.Vector(23.806129, 129.193142, 0)), False)
sketch9.addGeometry(Part.LineSegment(App.Vector(23.806129, 129.193142, 0), App.Vector(33.857677, 129.193142, 0)), False)
sketch9.addGeometry(Part.LineSegment(App.Vector(33.857677, 129.193142, 0), App.Vector(33.857677, 144.727349, 0)), False)
sketch9.addGeometry(Part.LineSegment(App.Vector(33.857677, 144.727349, 0), App.Vector(23.806129, 144.727349, 0)), False)
sketch9.addGeometry(Part.LineSegment(App.Vector(23.806129, 119.141586, 0), App.Vector(23.806129, 88.073172, 0)), False)
sketch9.addGeometry(Part.LineSegment(App.Vector(23.806129, 88.073172, 0), App.Vector(33.857677, 88.073172, 0)), False)
sketch9.addGeometry(Part.LineSegment(App.Vector(33.857677, 88.073172, 0), App.Vector(33.857677, 119.141586, 0)), False)
sketch9.addGeometry(Part.LineSegment(App.Vector(33.857677, 119.141586, 0), App.Vector(23.806129, 119.141586, 0)), False)
sketch9.addConstraint(Sketcher.Constraint("Coincident", 0, 2, 1, 1))
sketch9.addConstraint(Sketcher.Constraint("Coincident", 1, 2, 2, 1))
sketch9.addConstraint(Sketcher.Constraint("Coincident", 2, 2, 3, 1))
sketch9.addConstraint(Sketcher.Constraint("Coincident", 3, 2, 0, 1))
sketch9.addConstraint(Sketcher.Constraint("Coincident", 4, 2, 5, 1))
sketch9.addConstraint(Sketcher.Constraint("Coincident", 5, 2, 6, 1))
sketch9.addConstraint(Sketcher.Constraint("Coincident", 6, 2, 7, 1))
sketch9.addConstraint(Sketcher.Constraint("Coincident", 7, 2, 4, 1))
sketch9.addConstraint(Sketcher.Constraint("Vertical", 0))
sketch9.addConstraint(Sketcher.Constraint("Horizontal", 1))
sketch9.addConstraint(Sketcher.Constraint("Vertical", 2))
sketch9.addConstraint(Sketcher.Constraint("Horizontal", 3))
sketch9.addConstraint(Sketcher.Constraint("Vertical", 4))
sketch9.addConstraint(Sketcher.Constraint("Horizontal", 5))
sketch9.addConstraint(Sketcher.Constraint("Vertical", 6))
sketch9.addConstraint(Sketcher.Constraint("Horizontal", 7))
sketch9.addConstraint(Sketcher.Constraint("Vertical", 3, 2, 4, 2))
sketch9.addConstraint(Sketcher.Constraint("Vertical", 2, 2, 5, 2))
sketch9.addConstraint(Sketcher.Constraint("DistanceX", 1, 1, 1, 2, Q("10.051548 mm")))
sketch9.addConstraint(Sketcher.Constraint("DistanceY", 0, 2, 0, 1, Q("15.534207 mm")))
sketch9.addConstraint(Sketcher.Constraint("DistanceY", 4, 2, 4, 1, Q("31.068414 mm")))
sketch9.addConstraint(Sketcher.Constraint("DistanceX", -1, 1, 0, 2, Q("23.806129 mm")))
sketch9.addConstraint(Sketcher.Constraint("DistanceY", -1, 1, 2, 2, Q("144.727349 mm")))
sketch9.addConstraint(Sketcher.Constraint("DistanceY", -1, 1, 4, 2, Q("88.073172 mm")))
pad9 = body3.newObject("PartDesign::Pad", "Pad008")
pad9.Profile = sketch9
pad9.Length = Q("0.05 in")

# Sketch on XY plane
sketch10 = body3.newObject("Sketcher::SketchObject", "Sketch009")
sketch10.AttachmentSupport = (doc.getObject("XY_Plane002"), [""])
sketch10.MapMode = "FlatFace"
sketch10.AttachmentOffset = App.Placement(App.Vector(0, 0, 0.29 * 25.4), App.Rotation())
sketch10.addGeometry(Part.LineSegment(App.Vector(0, 92.185169, 0), App.Vector(0, 66.599414, 0)), False)
sketch10.addGeometry(Part.LineSegment(App.Vector(0, 66.599414, 0), App.Vector(14.668359, 66.599414, 0)), False)
sketch10.addGeometry(Part.LineSegment(App.Vector(14.668359, 66.599414, 0), App.Vector(14.668359, 92.185169, 0)), False)
sketch10.addGeometry(Part.LineSegment(App.Vector(14.668359, 92.185169, 0), App.Vector(0, 92.185169, 0)), False)
sketch10.addConstraint(Sketcher.Constraint("Coincident", 0, 2, 1, 1))
sketch10.addConstraint(Sketcher.Constraint("Coincident", 1, 2, 2, 1))
sketch10.addConstraint(Sketcher.Constraint("Coincident", 2, 2, 3, 1))
sketch10.addConstraint(Sketcher.Constraint("Coincident", 3, 2, 0, 1))
sketch10.addConstraint(Sketcher.Constraint("Vertical", 0))
sketch10.addConstraint(Sketcher.Constraint("Horizontal", 1))
sketch10.addConstraint(Sketcher.Constraint("Vertical", 2))
sketch10.addConstraint(Sketcher.Constraint("Horizontal", 3))
sketch10.addConstraint(Sketcher.Constraint("PointOnObject", 0, 2, -2))
sketch10.addConstraint(Sketcher.Constraint("DistanceX", 1, 1, 1, 2, Q("14.668359 mm")))
sketch10.addConstraint(Sketcher.Constraint("DistanceY", 0, 2, 0, 1, Q("25.585756 mm")))
sketch10.addConstraint(Sketcher.Constraint("DistanceY", -1, 1, 2, 2, Q("92.185169 mm")))
pad10 = body3.newObject("PartDesign::Pad", "Pad009")
pad10.Profile = sketch10
pad10.Length = Q("0.34 in")

# Sketch on XY plane
sketch11 = body3.newObject("Sketcher::SketchObject", "Sketch010")
sketch11.AttachmentSupport = (doc.getObject("XY_Plane002"), [""])
sketch11.MapMode = "FlatFace"
sketch11.AttachmentOffset = App.Placement(App.Vector(0, 0, 0.29 * 25.4), App.Rotation())
sketch11.addGeometry(Part.LineSegment(App.Vector(0, 153.865114, 0), App.Vector(0, 92.185169, 0)), False)
sketch11.addGeometry(Part.LineSegment(App.Vector(0, 92.185169, 0), App.Vector(5.53059, 92.185169, 0)), False)
sketch11.addGeometry(Part.LineSegment(App.Vector(5.53059, 92.185169, 0), App.Vector(5.53059, 149.296224, 0)), False)
sketch11.addGeometry(Part.LineSegment(App.Vector(5.53059, 149.296224, 0), App.Vector(40.711004, 149.296224, 0)), False)
sketch11.addGeometry(Part.LineSegment(App.Vector(40.711004, 149.296224, 0), App.Vector(40.711004, 72.995849, 0)), False)
sketch11.addGeometry(Part.LineSegment(App.Vector(40.711004, 72.995849, 0), App.Vector(14.668359, 72.995849, 0)), False)
sketch11.addGeometry(Part.LineSegment(App.Vector(14.668359, 72.995849, 0), App.Vector(14.668359, 66.599414, 0)), False)
sketch11.addGeometry(Part.LineSegment(App.Vector(14.668359, 66.599414, 0), App.Vector(46.650555, 66.599414, 0)), False)
sketch11.addGeometry(Part.LineSegment(App.Vector(46.650555, 66.599414, 0), App.Vector(46.650555, 153.865114, 0)), False)
sketch11.addGeometry(Part.LineSegment(App.Vector(46.650555, 153.865114, 0), App.Vector(0, 153.865114, 0)), False)
sketch11.addConstraint(Sketcher.Constraint("Coincident", 0, 2, 1, 1))
sketch11.addConstraint(Sketcher.Constraint("Coincident", 1, 2, 2, 1))
sketch11.addConstraint(Sketcher.Constraint("Coincident", 2, 2, 3, 1))
sketch11.addConstraint(Sketcher.Constraint("Coincident", 3, 2, 4, 1))
sketch11.addConstraint(Sketcher.Constraint("Coincident", 4, 2, 5, 1))
sketch11.addConstraint(Sketcher.Constraint("Coincident", 5, 2, 6, 1))
sketch11.addConstraint(Sketcher.Constraint("Coincident", 6, 2, 7, 1))
sketch11.addConstraint(Sketcher.Constraint("Coincident", 7, 2, 8, 1))
sketch11.addConstraint(Sketcher.Constraint("Coincident", 8, 2, 9, 1))
sketch11.addConstraint(Sketcher.Constraint("Coincident", 9, 2, 0, 1))
sketch11.addConstraint(Sketcher.Constraint("Vertical", 0))
sketch11.addConstraint(Sketcher.Constraint("Horizontal", 1))
sketch11.addConstraint(Sketcher.Constraint("Vertical", 2))
sketch11.addConstraint(Sketcher.Constraint("Horizontal", 3))
sketch11.addConstraint(Sketcher.Constraint("Vertical", 4))
sketch11.addConstraint(Sketcher.Constraint("Horizontal", 5))
sketch11.addConstraint(Sketcher.Constraint("Vertical", 6))
sketch11.addConstraint(Sketcher.Constraint("Horizontal", 7))
sketch11.addConstraint(Sketcher.Constraint("Vertical", 8))
sketch11.addConstraint(Sketcher.Constraint("Horizontal", 9))
sketch11.addConstraint(Sketcher.Constraint("PointOnObject", 0, 2, -2))
sketch11.addConstraint(Sketcher.Constraint("DistanceY", 8, 1, 8, 2, Q("87.2657 mm")))
sketch11.addConstraint(Sketcher.Constraint("DistanceX", 1, 1, 1, 2, Q("5.53059 mm")))
sketch11.addConstraint(Sketcher.Constraint("DistanceX", 3, 1, 3, 2, Q("35.180415 mm")))
sketch11.addConstraint(Sketcher.Constraint("DistanceX", 5, 2, 5, 1, Q("26.042645 mm")))
sketch11.addConstraint(Sketcher.Constraint("DistanceX", 7, 1, 7, 2, Q("31.982196 mm")))
sketch11.addConstraint(Sketcher.Constraint("DistanceY", 0, 2, 0, 1, Q("61.679944 mm")))
sketch11.addConstraint(Sketcher.Constraint("DistanceY", 2, 1, 2, 2, Q("57.111055 mm")))
sketch11.addConstraint(Sketcher.Constraint("DistanceY", 4, 2, 4, 1, Q("76.300375 mm")))
sketch11.addConstraint(Sketcher.Constraint("DistanceY", -1, 1, 0, 2, Q("92.185169 mm")))
pad11 = body3.newObject("PartDesign::Pad", "Pad010")
pad11.Profile = sketch11
pad11.Length = Q("0.14 in")

# Sketch on XY plane
sketch12 = body3.newObject("Sketcher::SketchObject", "Sketch011")
sketch12.AttachmentSupport = (doc.getObject("XY_Plane002"), [""])
sketch12.MapMode = "FlatFace"
sketch12.AttachmentOffset = App.Placement(App.Vector(0, 0, 0.29 * 25.4), App.Rotation())
sketch12.addGeometry(Part.LineSegment(App.Vector(22.394951, 171.881974, 0), App.Vector(5.53059, 149.296224, 0)), False)
sketch12.addGeometry(Part.LineSegment(App.Vector(5.53059, 149.296224, 0), App.Vector(40.711004, 149.296224, 0)), False)
sketch12.addGeometry(Part.LineSegment(App.Vector(40.711004, 149.296224, 0), App.Vector(22.394951, 171.881974, 0)), False)
sketch12.addConstraint(Sketcher.Constraint("Coincident", 0, 2, 1, 1))
sketch12.addConstraint(Sketcher.Constraint("Coincident", 1, 2, 2, 1))
sketch12.addConstraint(Sketcher.Constraint("Coincident", 2, 2, 0, 1))
sketch12.addConstraint(Sketcher.Constraint("Horizontal", 1))
sketch12.addConstraint(Sketcher.Constraint("Distance", 0, Q("28.18728 mm")))
sketch12.addConstraint(Sketcher.Constraint("DistanceX", 1, 1, 1, 2, Q("35.180415 mm")))
sketch12.addConstraint(Sketcher.Constraint("DistanceX", -1, 1, 0, 2, Q("5.53059 mm")))
sketch12.addConstraint(Sketcher.Constraint("DistanceX", -1, 1, 2, 2, Q("22.394951 mm")))
sketch12.addConstraint(Sketcher.Constraint("DistanceY", -1, 1, 0, 2, Q("149.296224 mm")))
pad12 = body3.newObject("PartDesign::Pad", "Pad011")
pad12.Profile = sketch12
pad12.Length = Q("0.29 in")
pad12.Reversed = True
body4 = doc.addObject("PartDesign::Body", "Body003")

# Sketch on XZ plane
sketch13 = body4.newObject("Sketcher::SketchObject", "Sketch012")
sketch13.AttachmentSupport = (doc.getObject("XZ_Plane003"), [""])
sketch13.MapMode = "FlatFace"
sketch13.AttachmentOffset = App.Placement(App.Vector(0, 0, -57.63552), App.Rotation())
sketch13.addGeometry(Part.LineSegment(App.Vector(-53.229664, 7.366, 0), App.Vector(-78.983765, 7.366, 0)), False)
sketch13.addGeometry(Part.ArcOfCircle(Part.Circle(App.Vector(-66.106714, -10.578648, 0), App.Vector(0, 0, 1), 22.086847), math.radians(54.336838), math.radians(125.663162)), False)
sketch13.addConstraint(Sketcher.Constraint("Coincident", 0, 1, 1, 1))
sketch13.addConstraint(Sketcher.Constraint("Coincident", 1, 2, 0, 2))
sketch13.addConstraint(Sketcher.Constraint("Horizontal", 0))
sketch13.addConstraint(Sketcher.Constraint("DistanceY", -1, 1, 0, 1, Q("0.29 in")))
sketch13.addConstraint(Sketcher.Constraint("DistanceX", 0, 2, 0, 1, Q("25.754102 mm")))
sketch13.addConstraint(Sketcher.Constraint("Radius", 1, Q("22.086847 mm")))
sketch13.addConstraint(Sketcher.Constraint("DistanceX", 1, 3, -1, 1, Q("66.106714 mm")))
pad13 = body4.newObject("PartDesign::Pad", "Pad012")
pad13.Profile = sketch13
pad13.Length = Q("3.25 in")
pad13.Reversed = True
body5 = doc.addObject("PartDesign::Body", "Body004")

# Sketch on XZ plane
sketch14 = body5.newObject("Sketcher::SketchObject", "Sketch013")
sketch14.AttachmentSupport = (doc.getObject("XZ_Plane004"), [""])
sketch14.MapMode = "FlatFace"
sketch14.AttachmentOffset = App.Placement(App.Vector(0, 0, -57.63552), App.Rotation())
sketch14.addGeometry(Part.LineSegment(App.Vector(-76.916344, 7.366, 0), App.Vector(-53.924453, 7.366, 0)), False)
sketch14.addGeometry(Part.LineSegment(App.Vector(-53.924453, 7.366, 0), App.Vector(-50.149668, 0, 0)), False)
sketch14.addGeometry(Part.LineSegment(App.Vector(-50.149668, 0, 0), App.Vector(-83.093263, 0, 0)), False)
sketch14.addGeometry(Part.LineSegment(App.Vector(-83.093263, 0, 0), App.Vector(-76.916344, 7.366, 0)), False)
sketch14.addConstraint(Sketcher.Constraint("Coincident", 0, 2, 1, 1))
sketch14.addConstraint(Sketcher.Constraint("Coincident", 1, 2, 2, 1))
sketch14.addConstraint(Sketcher.Constraint("Coincident", 2, 2, 3, 1))
sketch14.addConstraint(Sketcher.Constraint("Coincident", 3, 2, 0, 1))
sketch14.addConstraint(Sketcher.Constraint("Horizontal", 0))
sketch14.addConstraint(Sketcher.Constraint("Horizontal", 2))
sketch14.addConstraint(Sketcher.Constraint("PointOnObject", 1, 2, -1))
sketch14.addConstraint(Sketcher.Constraint("DistanceY", -1, 1, 0, 2, Q("0.29 in")))
sketch14.addConstraint(Sketcher.Constraint("DistanceX", 0, 1, 0, 2, Q("22.991892 mm")))
sketch14.addConstraint(Sketcher.Constraint("Distance", 3, Q("9.613131 mm")))
sketch14.addConstraint(Sketcher.Constraint("DistanceX", 2, 2, 2, 1, Q("32.943595 mm")))
sketch14.addConstraint(Sketcher.Constraint("DistanceX", 1, 2, -1, 1, Q("50.149668 mm")))
pad14 = body5.newObject("PartDesign::Pad", "Pad013")
pad14.Profile = sketch14
pad14.Length = Q("3.26 in")
pad14.Reversed = True
body6 = doc.addObject("PartDesign::Body", "Body005")

# Sketch on XZ plane
sketch15 = body6.newObject("Sketcher::SketchObject", "Sketch014")
sketch15.AttachmentSupport = (doc.getObject("XZ_Plane005"), [""])
sketch15.MapMode = "FlatFace"
sketch15.AttachmentOffset = App.Placement(App.Vector(0, 0, -140.18552), App.Rotation())
sketch15.addGeometry(Part.LineSegment(App.Vector(-61.817195, 15.270732, 0), App.Vector(-61.817195, 7.366, 0)), False)
sketch15.addGeometry(Part.LineSegment(App.Vector(-61.817195, 7.366, 0), App.Vector(-70.053086, 7.366, 0)), False)
sketch15.addGeometry(Part.LineSegment(App.Vector(-70.053086, 7.366, 0), App.Vector(-70.053086, 15.270732, 0)), False)
sketch15.addGeometry(Part.LineSegment(App.Vector(-70.053086, 15.270732, 0), App.Vector(-61.817195, 15.270732, 0)), False)
sketch15.addConstraint(Sketcher.Constraint("Coincident", 0, 2, 1, 1))
sketch15.addConstraint(Sketcher.Constraint("Coincident", 1, 2, 2, 1))
sketch15.addConstraint(Sketcher.Constraint("Coincident", 2, 2, 3, 1))
sketch15.addConstraint(Sketcher.Constraint("Coincident", 3, 2, 0, 1))
sketch15.addConstraint(Sketcher.Constraint("Vertical", 0))
sketch15.addConstraint(Sketcher.Constraint("Horizontal", 1))
sketch15.addConstraint(Sketcher.Constraint("Vertical", 2))
sketch15.addConstraint(Sketcher.Constraint("Horizontal", 3))
sketch15.addConstraint(Sketcher.Constraint("DistanceY", -1, 1, 0, 2, Q("0.29 in")))
sketch15.addConstraint(Sketcher.Constraint("DistanceX", 1, 2, 1, 1, Q("8.23589 mm")))
sketch15.addConstraint(Sketcher.Constraint("DistanceY", 0, 2, 0, 1, Q("7.904732 mm")))
sketch15.addConstraint(Sketcher.Constraint("DistanceX", 0, 2, -1, 1, Q("61.817195 mm")))
pad15 = body6.newObject("PartDesign::Pad", "Pad014")
pad15.Profile = sketch15
pad15.Length = Q("0.36 in")

doc.recompute()
